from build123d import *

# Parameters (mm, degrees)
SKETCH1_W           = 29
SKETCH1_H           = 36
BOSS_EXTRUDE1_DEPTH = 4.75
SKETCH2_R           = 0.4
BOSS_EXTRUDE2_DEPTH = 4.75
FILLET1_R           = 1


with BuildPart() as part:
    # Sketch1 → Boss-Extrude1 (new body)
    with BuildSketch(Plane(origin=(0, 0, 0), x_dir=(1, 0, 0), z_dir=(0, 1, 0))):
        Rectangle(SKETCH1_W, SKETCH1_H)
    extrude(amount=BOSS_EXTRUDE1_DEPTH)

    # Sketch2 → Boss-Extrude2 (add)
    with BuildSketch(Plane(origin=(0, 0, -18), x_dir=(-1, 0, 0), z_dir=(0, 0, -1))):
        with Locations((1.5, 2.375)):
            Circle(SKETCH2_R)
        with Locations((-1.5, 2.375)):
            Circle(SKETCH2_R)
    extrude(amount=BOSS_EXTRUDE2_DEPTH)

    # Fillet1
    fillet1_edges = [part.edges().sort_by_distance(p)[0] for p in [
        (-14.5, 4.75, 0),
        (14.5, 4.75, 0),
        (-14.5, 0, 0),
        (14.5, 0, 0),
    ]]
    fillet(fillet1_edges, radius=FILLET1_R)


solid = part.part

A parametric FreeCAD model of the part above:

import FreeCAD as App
import Part
import Sketcher
from FreeCAD import Vector
Q = App.Units.Quantity


def edges_at(feature, points):
    """Names of the edges that pass closest to the given points."""
    edges = feature.Shape.Edges
    near = lambda p: min(range(len(edges)), key=lambda i: edges[i].distToShape(Part.Vertex(*p))[0])
    return sorted({f"Edge{near(p) + 1}" for p in points})


def add_polygon(sketch, points):
    """Adds a closed chain of lines whose ends are joined by coincident constraints."""
    first, n = sketch.GeometryCount, len(points)
    for a, b in zip(points, points[1:] + points[:1]):
        sketch.addGeometry(Part.LineSegment(App.Vector(*a, 0), App.Vector(*b, 0)), False)
    for i in range(n):
        sketch.addConstraint(Sketcher.Constraint("Coincident", first + i, 2, first + (i + 1) % n, 1))

doc = App.newDocument("Part")
body = doc.addObject("PartDesign::Body", "Body")

# Sketch on XZ plane
sketch1 = body.newObject("Sketcher::SketchObject", "Sketch")
sketch1.AttachmentSupport = (doc.getObject("XZ_Plane"), [""])
sketch1.MapMode = "FlatFace"
add_polygon(sketch1, [(-14, -18), (-14, 18), (14, 18), (14, -18)])  # lines 0-3
sketch1.addConstraint([
    Sketcher.Constraint("Vertical", 0),
    Sketcher.Constraint("Horizontal", 1),
    Sketcher.Constraint("Vertical", 2),
    Sketcher.Constraint("Horizontal", 3),
    Sketcher.Constraint("Symmetric", 0, 2, 2, 2, -1, 1),
    Sketcher.Constraint("DistanceX", 1, 1, 1, 2, Q("29 mm")),
    Sketcher.Constraint("DistanceY", 0, 1, 0, 2, Q("36 mm")),
])
pad1 = body.newObject("PartDesign::Pad", "Pad")
pad1.Profile = sketch1
pad1.Length = 4.75
pad1.Reversed = True

# Sketch on XY plane
sketch2 = body.newObject("Sketcher::SketchObject", "Sketch001")
sketch2.AttachmentSupport = (doc.getObject("XY_Plane"), [""])
sketch2.MapMode = "FlatFace"
sketch2.AttachmentOffset = App.Placement(Vector(0, 0, -18), App.Rotation())
sketch2.addGeometry([
    Part.Circle(Vector(-1.5, 2.38, 0), Vector(0, 0, 1), 0.4),
    Part.Circle(Vector(1.5, 2.38, 0), Vector(0, 0, 1), 0.4),
], False)
sketch2.addConstraint([
    Sketcher.Constraint("Equal", 0, 1),
    Sketcher.Constraint("Symmetric", 0, 3, 1, 3, -2),
    Sketcher.Constraint("Diameter", 0, Q("0.8 mm")),
    Sketcher.Constraint("DistanceX", 0, 3, 1, 3, Q("3 mm")),
    Sketcher.Constraint("DistanceY", -1, 1, 0, 3, Q("2.375 mm")),
])
pad2 = body.newObject("PartDesign::Pad", "Pad001")
pad2.Profile = sketch2
pad2.Length = 4.75
pad2.Reversed = True
doc.recompute()

fillet = body.newObject("PartDesign::Fillet", "Fillet")
fillet.Base = (pad2, edges_at(pad2, [
    (-14.5, 4.75, 0),
    (14.5, 4.75, 0),
    (-14.5, 0, 0),
    (14.5, 0, 0),
]))
fillet.Radius = 1

doc.recompute()
